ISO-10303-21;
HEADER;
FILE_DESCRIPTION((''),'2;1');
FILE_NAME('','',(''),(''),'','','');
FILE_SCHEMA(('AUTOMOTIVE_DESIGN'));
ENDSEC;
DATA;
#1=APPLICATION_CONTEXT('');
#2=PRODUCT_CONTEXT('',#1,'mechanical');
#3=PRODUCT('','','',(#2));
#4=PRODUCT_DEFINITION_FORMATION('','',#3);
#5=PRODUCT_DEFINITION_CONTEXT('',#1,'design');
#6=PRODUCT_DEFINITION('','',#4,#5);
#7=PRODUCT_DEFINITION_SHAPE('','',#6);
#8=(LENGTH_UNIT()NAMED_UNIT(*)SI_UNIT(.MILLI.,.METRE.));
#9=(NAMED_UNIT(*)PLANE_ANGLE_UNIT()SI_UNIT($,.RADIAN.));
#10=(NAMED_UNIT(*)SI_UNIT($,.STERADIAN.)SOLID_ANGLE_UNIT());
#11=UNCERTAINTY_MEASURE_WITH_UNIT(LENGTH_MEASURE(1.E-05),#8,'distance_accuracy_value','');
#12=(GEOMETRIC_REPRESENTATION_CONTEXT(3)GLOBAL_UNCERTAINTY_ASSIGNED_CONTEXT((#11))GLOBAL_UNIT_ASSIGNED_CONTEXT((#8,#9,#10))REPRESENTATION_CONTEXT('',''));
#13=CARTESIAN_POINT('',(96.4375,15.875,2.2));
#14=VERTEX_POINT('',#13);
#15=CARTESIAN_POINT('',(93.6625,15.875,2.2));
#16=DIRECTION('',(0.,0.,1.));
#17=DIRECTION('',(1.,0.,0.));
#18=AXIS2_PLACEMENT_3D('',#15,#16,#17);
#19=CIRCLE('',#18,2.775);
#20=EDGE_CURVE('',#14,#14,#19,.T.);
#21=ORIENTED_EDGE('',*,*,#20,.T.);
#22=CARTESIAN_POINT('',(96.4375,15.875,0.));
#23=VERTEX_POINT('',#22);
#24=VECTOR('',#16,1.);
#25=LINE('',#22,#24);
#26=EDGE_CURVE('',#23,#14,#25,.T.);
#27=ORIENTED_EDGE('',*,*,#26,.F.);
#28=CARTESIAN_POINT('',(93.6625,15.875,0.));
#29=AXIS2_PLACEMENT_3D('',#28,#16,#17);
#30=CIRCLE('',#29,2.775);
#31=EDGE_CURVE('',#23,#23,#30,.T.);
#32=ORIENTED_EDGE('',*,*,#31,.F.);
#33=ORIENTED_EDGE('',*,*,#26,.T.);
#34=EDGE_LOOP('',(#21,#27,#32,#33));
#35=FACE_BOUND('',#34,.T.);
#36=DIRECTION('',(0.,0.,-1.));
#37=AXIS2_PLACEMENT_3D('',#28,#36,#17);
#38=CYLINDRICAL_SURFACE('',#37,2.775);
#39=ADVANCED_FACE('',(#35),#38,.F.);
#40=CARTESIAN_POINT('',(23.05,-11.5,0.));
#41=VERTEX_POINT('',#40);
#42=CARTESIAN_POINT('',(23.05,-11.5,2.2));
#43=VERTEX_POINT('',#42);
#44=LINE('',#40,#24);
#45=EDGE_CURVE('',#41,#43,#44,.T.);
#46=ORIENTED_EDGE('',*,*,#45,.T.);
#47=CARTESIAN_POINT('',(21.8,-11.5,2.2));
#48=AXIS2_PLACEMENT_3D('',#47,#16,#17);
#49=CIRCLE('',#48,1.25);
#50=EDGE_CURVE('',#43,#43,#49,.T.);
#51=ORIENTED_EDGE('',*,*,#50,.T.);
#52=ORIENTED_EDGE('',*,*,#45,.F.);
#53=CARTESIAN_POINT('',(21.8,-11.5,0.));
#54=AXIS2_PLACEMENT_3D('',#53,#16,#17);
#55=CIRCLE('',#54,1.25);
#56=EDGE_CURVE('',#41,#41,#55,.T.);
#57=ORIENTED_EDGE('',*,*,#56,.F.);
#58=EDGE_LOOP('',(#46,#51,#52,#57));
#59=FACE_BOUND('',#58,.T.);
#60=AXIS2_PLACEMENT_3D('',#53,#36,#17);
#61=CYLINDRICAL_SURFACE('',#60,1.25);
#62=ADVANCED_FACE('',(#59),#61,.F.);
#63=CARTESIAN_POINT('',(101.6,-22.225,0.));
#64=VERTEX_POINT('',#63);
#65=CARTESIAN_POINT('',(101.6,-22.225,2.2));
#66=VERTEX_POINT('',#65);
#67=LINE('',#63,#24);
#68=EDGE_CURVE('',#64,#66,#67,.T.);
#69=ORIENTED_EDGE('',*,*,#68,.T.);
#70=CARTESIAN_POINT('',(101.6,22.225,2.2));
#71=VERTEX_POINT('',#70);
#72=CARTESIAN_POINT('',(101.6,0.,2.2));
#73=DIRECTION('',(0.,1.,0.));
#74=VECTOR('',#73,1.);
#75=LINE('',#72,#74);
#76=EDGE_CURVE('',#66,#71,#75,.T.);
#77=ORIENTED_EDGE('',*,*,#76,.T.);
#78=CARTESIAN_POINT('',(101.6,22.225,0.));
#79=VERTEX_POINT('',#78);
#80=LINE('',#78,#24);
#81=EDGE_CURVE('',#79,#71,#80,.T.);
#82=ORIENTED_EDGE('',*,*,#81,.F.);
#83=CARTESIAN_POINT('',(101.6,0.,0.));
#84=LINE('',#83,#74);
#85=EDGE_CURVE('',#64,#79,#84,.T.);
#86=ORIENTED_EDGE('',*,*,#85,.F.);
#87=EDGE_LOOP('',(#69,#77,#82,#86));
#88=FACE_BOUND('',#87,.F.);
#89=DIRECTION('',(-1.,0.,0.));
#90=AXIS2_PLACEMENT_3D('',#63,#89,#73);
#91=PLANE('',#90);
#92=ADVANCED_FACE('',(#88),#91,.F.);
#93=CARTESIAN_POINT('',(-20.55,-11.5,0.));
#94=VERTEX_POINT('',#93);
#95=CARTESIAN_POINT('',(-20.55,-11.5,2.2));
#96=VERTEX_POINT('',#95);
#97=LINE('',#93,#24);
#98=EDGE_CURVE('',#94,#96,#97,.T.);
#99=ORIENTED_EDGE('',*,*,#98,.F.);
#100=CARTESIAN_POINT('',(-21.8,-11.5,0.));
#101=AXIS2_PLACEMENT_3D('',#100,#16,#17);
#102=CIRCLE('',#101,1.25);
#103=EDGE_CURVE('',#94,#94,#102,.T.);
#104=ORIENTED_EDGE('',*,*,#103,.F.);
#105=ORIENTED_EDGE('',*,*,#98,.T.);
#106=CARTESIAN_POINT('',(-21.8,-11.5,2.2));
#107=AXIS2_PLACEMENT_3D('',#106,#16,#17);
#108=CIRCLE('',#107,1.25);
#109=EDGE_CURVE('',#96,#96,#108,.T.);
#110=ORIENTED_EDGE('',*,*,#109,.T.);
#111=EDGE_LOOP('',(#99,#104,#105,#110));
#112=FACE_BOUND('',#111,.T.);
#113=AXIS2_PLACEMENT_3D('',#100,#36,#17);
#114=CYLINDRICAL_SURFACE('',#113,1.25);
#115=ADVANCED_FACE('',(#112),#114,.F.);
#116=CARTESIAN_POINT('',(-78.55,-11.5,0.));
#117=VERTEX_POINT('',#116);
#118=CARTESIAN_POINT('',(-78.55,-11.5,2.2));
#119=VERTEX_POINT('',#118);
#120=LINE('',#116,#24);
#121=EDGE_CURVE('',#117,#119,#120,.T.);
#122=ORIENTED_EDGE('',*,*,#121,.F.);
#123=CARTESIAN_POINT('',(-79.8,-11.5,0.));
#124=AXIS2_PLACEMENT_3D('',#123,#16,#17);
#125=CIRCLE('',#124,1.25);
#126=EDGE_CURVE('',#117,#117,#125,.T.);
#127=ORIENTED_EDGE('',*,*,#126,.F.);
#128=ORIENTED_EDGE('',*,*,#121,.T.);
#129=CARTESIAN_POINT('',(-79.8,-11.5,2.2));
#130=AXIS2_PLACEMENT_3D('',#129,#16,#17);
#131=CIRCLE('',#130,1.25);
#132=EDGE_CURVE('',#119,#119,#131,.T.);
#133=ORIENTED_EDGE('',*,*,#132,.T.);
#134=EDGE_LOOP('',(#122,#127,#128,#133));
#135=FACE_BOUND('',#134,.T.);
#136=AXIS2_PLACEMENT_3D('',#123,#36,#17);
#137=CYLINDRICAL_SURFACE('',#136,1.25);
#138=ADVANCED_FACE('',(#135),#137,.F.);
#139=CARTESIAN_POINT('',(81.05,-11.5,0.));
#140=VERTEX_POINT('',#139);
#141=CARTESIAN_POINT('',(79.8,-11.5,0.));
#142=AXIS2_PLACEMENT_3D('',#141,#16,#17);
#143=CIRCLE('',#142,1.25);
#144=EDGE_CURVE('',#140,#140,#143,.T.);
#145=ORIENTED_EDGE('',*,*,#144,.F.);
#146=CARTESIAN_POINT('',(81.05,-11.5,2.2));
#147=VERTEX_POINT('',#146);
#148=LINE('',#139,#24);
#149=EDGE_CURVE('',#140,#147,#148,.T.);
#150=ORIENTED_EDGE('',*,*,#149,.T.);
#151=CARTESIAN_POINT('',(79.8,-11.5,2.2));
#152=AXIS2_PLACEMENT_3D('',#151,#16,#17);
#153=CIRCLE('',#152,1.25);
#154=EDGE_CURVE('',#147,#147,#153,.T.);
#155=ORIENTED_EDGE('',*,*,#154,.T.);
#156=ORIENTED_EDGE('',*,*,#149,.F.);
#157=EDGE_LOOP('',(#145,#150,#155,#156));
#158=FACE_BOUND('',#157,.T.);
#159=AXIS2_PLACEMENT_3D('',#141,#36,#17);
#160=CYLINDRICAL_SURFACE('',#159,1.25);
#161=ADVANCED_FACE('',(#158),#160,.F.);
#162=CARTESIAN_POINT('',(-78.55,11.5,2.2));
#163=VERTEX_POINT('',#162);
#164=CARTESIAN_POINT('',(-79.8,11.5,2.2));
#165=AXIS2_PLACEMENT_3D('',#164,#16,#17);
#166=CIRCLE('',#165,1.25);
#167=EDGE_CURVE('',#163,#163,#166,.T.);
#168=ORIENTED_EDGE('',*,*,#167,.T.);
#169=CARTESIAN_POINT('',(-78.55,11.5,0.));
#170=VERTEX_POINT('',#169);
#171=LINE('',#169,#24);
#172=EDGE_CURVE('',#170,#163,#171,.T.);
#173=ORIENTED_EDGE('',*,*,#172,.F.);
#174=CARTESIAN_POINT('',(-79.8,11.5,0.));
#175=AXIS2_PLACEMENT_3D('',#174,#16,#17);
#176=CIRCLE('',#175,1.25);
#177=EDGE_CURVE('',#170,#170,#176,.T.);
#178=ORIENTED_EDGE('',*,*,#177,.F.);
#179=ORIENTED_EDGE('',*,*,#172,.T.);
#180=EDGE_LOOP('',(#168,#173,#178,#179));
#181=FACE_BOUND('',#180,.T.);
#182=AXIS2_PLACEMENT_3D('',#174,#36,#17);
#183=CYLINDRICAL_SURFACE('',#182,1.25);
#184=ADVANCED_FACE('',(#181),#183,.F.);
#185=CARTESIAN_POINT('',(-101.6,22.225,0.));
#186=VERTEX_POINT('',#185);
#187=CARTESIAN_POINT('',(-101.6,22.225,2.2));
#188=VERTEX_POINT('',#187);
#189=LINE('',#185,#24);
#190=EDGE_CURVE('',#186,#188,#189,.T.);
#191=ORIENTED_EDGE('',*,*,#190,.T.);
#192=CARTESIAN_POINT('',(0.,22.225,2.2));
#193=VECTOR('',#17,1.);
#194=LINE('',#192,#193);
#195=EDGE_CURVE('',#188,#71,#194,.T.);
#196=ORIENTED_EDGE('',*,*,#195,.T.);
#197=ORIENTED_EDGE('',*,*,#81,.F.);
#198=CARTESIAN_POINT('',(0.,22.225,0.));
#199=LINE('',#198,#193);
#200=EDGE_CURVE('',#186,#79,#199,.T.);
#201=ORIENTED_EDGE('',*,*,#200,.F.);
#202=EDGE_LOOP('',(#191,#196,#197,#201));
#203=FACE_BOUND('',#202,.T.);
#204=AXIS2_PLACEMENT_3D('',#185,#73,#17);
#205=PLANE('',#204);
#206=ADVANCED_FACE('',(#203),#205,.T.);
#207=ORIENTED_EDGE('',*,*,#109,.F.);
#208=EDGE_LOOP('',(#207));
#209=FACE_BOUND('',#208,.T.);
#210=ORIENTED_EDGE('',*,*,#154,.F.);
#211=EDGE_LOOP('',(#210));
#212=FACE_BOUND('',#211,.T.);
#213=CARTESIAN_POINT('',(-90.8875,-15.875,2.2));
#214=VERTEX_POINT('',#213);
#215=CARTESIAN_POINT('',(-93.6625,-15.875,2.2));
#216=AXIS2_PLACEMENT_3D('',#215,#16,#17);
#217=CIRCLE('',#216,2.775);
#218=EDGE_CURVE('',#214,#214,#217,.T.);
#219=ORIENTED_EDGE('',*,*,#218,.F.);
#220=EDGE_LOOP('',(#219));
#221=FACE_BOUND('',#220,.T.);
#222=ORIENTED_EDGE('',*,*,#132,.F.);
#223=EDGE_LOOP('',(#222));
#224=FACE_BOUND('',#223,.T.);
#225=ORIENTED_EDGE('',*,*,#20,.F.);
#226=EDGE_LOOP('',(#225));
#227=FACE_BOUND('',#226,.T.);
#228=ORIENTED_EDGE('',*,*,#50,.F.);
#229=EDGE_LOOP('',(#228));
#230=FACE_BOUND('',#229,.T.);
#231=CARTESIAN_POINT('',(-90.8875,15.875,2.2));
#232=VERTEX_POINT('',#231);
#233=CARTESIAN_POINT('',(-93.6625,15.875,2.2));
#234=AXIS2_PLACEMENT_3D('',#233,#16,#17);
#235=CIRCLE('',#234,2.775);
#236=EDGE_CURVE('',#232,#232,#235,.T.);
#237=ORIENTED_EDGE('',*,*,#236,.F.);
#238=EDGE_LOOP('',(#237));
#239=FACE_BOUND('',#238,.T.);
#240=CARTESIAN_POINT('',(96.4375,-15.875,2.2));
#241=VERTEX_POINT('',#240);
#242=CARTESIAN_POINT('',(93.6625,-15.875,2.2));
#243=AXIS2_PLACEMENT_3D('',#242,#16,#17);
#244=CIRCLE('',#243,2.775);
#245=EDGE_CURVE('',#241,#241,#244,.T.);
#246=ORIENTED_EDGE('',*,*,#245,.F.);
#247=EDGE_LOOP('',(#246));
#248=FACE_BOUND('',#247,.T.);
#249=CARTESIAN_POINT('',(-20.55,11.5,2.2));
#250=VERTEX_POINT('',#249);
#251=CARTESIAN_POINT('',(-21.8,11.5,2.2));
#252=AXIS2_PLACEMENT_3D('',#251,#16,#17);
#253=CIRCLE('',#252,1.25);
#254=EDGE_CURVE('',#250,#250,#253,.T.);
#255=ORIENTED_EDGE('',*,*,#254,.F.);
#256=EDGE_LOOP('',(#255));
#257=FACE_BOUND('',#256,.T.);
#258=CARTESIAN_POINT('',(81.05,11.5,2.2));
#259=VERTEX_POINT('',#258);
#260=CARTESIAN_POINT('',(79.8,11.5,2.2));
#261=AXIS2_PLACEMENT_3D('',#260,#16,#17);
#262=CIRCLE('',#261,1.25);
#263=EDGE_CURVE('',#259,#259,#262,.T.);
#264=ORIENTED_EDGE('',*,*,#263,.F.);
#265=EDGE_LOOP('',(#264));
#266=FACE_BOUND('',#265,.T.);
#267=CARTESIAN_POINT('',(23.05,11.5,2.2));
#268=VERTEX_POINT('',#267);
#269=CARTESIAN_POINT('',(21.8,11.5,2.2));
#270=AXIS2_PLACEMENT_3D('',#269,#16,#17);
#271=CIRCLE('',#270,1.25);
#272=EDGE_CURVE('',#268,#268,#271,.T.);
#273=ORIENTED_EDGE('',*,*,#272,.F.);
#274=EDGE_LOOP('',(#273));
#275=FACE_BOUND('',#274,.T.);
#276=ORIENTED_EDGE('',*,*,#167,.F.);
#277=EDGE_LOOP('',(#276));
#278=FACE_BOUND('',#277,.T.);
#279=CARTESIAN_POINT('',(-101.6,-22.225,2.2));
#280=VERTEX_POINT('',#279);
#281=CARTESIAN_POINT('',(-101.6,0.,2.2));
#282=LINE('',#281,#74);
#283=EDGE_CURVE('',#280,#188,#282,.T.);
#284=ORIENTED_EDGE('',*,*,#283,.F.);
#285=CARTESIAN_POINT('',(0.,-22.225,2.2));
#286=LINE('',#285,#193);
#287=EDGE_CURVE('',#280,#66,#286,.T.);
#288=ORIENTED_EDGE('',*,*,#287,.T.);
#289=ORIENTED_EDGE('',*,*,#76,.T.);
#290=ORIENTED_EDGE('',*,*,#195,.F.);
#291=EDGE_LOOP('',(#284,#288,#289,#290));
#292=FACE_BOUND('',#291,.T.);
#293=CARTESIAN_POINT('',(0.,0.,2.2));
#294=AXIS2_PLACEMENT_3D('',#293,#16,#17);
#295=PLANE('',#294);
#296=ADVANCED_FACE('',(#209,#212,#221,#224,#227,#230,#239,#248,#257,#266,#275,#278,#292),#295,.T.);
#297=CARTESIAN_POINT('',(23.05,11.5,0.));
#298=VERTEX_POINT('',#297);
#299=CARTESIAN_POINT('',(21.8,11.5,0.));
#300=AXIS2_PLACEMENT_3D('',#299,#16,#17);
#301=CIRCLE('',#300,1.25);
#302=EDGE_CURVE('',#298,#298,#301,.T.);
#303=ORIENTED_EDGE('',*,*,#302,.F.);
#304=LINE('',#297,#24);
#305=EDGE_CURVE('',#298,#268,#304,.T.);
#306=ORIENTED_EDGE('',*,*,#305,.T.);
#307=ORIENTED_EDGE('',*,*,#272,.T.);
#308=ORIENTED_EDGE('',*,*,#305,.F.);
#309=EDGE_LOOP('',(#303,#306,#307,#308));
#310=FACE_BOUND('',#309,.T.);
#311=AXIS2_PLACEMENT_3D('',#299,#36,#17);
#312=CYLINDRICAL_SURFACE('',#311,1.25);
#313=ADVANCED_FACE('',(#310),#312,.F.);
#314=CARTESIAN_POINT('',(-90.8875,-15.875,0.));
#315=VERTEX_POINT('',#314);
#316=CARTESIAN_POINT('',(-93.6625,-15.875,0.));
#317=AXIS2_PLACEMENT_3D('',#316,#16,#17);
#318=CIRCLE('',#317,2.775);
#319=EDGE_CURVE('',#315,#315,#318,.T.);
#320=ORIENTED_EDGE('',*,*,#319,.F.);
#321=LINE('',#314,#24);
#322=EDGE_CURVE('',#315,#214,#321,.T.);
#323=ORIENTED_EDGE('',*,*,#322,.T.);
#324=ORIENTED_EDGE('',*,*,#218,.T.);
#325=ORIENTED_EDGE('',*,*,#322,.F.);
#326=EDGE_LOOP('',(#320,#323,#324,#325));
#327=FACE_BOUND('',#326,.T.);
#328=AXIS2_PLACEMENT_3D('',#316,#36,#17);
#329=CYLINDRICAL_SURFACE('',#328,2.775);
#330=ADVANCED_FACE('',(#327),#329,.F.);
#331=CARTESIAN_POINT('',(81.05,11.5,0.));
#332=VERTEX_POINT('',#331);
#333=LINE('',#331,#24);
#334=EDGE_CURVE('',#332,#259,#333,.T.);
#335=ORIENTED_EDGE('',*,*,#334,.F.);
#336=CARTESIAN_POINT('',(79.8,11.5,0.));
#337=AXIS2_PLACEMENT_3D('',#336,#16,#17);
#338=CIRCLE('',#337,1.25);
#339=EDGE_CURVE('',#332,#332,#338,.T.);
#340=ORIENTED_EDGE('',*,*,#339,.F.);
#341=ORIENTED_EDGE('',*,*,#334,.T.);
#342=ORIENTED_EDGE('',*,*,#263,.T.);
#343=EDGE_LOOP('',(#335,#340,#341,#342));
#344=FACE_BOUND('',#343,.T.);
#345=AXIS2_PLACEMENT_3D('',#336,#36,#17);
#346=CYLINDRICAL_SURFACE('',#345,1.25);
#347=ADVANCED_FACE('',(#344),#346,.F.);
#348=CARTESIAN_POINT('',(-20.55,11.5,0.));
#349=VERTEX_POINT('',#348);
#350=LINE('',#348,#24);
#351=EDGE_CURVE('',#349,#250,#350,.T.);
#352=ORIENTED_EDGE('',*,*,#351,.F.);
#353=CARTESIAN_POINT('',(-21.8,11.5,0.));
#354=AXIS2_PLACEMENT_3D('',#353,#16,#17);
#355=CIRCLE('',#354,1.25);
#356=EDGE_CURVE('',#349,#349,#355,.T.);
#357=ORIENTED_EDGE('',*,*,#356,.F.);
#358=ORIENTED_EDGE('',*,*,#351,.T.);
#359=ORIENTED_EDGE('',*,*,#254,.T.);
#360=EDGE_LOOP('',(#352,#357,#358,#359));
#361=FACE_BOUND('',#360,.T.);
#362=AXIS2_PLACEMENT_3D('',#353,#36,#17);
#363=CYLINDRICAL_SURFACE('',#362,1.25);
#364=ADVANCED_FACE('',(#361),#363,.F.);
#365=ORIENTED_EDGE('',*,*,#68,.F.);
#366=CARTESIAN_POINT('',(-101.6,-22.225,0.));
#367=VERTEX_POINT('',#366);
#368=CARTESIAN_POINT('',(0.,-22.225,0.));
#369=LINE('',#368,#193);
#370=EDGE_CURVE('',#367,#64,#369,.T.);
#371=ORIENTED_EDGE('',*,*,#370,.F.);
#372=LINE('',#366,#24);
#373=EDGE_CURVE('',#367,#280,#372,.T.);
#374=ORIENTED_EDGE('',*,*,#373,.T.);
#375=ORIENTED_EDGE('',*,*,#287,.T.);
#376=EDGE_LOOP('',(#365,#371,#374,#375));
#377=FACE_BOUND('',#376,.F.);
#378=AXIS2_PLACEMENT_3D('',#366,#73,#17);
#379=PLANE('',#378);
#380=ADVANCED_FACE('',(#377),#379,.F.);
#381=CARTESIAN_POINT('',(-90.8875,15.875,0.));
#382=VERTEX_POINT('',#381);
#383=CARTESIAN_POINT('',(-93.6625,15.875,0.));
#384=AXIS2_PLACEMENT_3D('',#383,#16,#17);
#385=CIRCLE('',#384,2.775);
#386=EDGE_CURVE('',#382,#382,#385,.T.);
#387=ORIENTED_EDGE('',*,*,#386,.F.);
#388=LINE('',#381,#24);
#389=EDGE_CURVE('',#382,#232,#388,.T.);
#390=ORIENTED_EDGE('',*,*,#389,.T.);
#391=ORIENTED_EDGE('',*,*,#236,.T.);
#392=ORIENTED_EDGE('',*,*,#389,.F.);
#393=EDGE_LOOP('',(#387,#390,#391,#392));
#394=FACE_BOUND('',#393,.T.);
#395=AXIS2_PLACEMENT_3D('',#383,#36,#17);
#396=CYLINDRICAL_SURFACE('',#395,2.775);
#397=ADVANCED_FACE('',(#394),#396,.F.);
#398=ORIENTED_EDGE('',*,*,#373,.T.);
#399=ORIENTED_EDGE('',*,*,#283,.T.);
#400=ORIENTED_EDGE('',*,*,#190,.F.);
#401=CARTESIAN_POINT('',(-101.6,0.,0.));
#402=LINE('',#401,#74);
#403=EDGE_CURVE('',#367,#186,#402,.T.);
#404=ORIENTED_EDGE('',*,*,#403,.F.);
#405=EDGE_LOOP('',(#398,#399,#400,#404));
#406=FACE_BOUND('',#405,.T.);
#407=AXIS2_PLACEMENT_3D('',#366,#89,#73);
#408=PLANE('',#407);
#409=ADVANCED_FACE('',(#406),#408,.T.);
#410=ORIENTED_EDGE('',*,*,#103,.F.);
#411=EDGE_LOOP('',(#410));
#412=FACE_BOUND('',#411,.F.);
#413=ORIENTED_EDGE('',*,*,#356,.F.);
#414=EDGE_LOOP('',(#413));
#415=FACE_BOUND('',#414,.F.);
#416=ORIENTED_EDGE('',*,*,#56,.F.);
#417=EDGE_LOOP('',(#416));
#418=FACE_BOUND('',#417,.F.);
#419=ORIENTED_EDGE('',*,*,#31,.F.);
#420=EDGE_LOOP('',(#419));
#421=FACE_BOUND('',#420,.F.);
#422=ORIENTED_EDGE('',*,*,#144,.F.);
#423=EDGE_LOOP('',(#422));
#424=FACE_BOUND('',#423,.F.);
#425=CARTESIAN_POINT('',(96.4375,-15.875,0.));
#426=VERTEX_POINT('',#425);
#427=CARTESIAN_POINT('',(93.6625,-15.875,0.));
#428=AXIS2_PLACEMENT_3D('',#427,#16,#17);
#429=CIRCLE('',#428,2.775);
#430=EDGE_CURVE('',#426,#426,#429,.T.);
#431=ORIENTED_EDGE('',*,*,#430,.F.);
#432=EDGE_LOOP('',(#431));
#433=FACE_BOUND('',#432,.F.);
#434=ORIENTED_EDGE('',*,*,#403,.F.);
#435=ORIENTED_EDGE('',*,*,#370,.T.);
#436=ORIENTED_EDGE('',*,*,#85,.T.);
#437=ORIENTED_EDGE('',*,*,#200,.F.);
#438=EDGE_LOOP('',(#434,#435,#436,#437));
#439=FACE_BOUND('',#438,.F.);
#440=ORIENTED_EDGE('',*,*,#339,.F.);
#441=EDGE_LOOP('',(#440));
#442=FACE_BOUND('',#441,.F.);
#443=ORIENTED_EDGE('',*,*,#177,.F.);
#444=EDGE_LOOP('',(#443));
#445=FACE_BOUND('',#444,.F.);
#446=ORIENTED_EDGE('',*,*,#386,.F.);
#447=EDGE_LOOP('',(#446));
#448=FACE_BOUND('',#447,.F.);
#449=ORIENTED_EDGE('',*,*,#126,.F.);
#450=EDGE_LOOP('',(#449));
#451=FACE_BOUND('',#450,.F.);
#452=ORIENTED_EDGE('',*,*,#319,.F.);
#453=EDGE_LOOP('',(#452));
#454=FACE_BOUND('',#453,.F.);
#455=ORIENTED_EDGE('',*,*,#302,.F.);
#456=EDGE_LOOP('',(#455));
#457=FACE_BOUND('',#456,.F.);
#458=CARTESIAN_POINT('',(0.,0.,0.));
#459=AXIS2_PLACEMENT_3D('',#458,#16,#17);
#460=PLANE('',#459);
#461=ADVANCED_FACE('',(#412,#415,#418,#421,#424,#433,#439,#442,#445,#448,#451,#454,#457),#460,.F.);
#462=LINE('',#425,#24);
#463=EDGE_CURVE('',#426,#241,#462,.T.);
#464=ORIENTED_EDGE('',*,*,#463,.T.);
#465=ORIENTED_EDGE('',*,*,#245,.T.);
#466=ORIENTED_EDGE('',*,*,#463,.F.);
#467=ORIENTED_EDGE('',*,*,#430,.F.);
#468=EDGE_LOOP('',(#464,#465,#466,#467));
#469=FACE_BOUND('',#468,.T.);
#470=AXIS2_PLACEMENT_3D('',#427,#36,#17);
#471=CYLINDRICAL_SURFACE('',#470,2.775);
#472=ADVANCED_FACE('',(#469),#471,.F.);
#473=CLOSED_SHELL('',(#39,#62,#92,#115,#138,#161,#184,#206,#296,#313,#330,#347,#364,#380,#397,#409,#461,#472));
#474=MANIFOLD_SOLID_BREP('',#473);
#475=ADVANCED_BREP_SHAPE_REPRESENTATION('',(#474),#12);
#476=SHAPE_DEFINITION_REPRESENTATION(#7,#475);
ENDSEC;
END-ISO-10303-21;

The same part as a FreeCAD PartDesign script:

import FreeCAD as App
import Part
import Sketcher
from FreeCAD import Vector

doc = App.newDocument("Part")
params = doc.addObject("Spreadsheet::Sheet", "Params")
for row, (alias, value) in enumerate([
    ("sketch1_diameter", "2.5 mm"),
    ("sketch1_diameter2", "5.55 mm"),
    ("sketch1_width", "203.2 mm"),
    ("sketch1_height", "44.45 mm"),
    ("pad1_length", "2.2 mm"),
], start=1):
    params.set(f"A{row}", alias)
    params.set(f"B{row}", "=" + value)
    params.setAlias(f"B{row}", alias)

body = doc.addObject("PartDesign::Body", "Body")

# Sketch on XY plane
sketch1 = doc.addObject("Sketcher::SketchObject", "Sketch")
body.addObject(sketch1)
sketch1.AttachmentSupport = (doc.XY_Plane, [""])
sketch1.MapMode = "FlatFace"
sketch1.addGeometry([
    Part.LineSegment(Vector(-101.6, 22.225, 0), Vector(-101.6, -22.225, 0)),  # 0
    Part.LineSegment(Vector(-101.6, -22.225, 0), Vector(101.6, -22.225, 0)),  # 1
    Part.LineSegment(Vector(101.6, -22.225, 0), Vector(101.6, 22.225, 0)),  # 2
    Part.LineSegment(Vector(101.6, 22.225, 0), Vector(-101.6, 22.225, 0)),  # 3
    Part.Circle(Vector(-93.6625, -15.875, 0), Vector(0, 0, 1), 2.775),  # 4
    Part.Circle(Vector(-79.8, -11.5, 0), Vector(0, 0, 1), 1.25),  # 5
    Part.Circle(Vector(-21.8, -11.5, 0), Vector(0, 0, 1), 1.25),  # 6
    Part.Circle(Vector(21.8, -11.5, 0), Vector(0, 0, 1), 1.25),  # 7
    Part.Circle(Vector(93.6625, -15.875, 0), Vector(0, 0, 1), 2.775),  # 8
    Part.Circle(Vector(79.8, -11.5, 0), Vector(0, 0, 1), 1.25),  # 9
    Part.Circle(Vector(-79.8, 11.5, 0), Vector(0, 0, 1), 1.25),  # 10
    Part.Circle(Vector(-93.6625, 15.875, 0), Vector(0, 0, 1), 2.775),  # 11
    Part.Circle(Vector(-21.8, 11.5, 0), Vector(0, 0, 1), 1.25),  # 12
    Part.Circle(Vector(21.8, 11.5, 0), Vector(0, 0, 1), 1.25),  # 13
    Part.Circle(Vector(79.8, 11.5, 0), Vector(0, 0, 1), 1.25),  # 14
    Part.Circle(Vector(93.6625, 15.875, 0), Vector(0, 0, 1), 2.775),  # 15
], False)
sketch1.addConstraint([
    Sketcher.Constraint("Coincident", 0, 2, 1, 1),
    Sketcher.Constraint("Coincident", 1, 2, 2, 1),
    Sketcher.Constraint("Coincident", 2, 2, 3, 1),
    Sketcher.Constraint("Coincident", 3, 2, 0, 1),
    Sketcher.Constraint("Vertical", 0),
    Sketcher.Constraint("Horizontal", 1),
    Sketcher.Constraint("Vertical", 2),
    Sketcher.Constraint("Horizontal", 3),
    Sketcher.Constraint("Equal", 5, 6),
    Sketcher.Constraint("Equal", 6, 7),
    Sketcher.Constraint("Equal", 4, 8),
    Sketcher.Constraint("Equal", 7, 9),
    Sketcher.Constraint("Equal", 9, 10),
    Sketcher.Constraint("Equal", 8, 11),
    Sketcher.Constraint("Equal", 10, 12),
    Sketcher.Constraint("Equal", 12, 13),
    Sketcher.Constraint("Equal", 13, 14),
    Sketcher.Constraint("Equal", 11, 15),
    Sketcher.Constraint("Symmetric", 9, 3, 10, 3, -1, 1),
    Sketcher.Constraint("Symmetric", 8, 3, 11, 3, -1, 1),
    Sketcher.Constraint("Symmetric", 7, 3, 12, 3, -1, 1),
    Sketcher.Constraint("Symmetric", 6, 3, 13, 3, -1, 1),
    Sketcher.Constraint("Symmetric", 5, 3, 14, 3, -1, 1),
    Sketcher.Constraint("Symmetric", 4, 3, 15, 3, -1, 1),
    Sketcher.Constraint("Symmetric", 0, 2, 2, 2, -1, 1),
    Sketcher.Constraint("Symmetric", 6, 3, 7, 3, -2),
    Sketcher.Constraint("Symmetric", 4, 3, 8, 3, -2),
    Sketcher.Constraint("Symmetric", 5, 3, 9, 3, -2),
    Sketcher.Constraint("Horizontal", 5, 3, 6, 3),
    Sketcher.Constraint("Diameter", 5, 2.5),
    Sketcher.Constraint("Diameter", 4, 5.55),
    Sketcher.Constraint("DistanceX", 1, 1, 1, 2, 203.2),
    Sketcher.Constraint("DistanceX", 5, 3, 6, 3, 58.0),
    Sketcher.Constraint("DistanceY", 5, 3, 10, 3, 23.0),
    Sketcher.Constraint("DistanceY", 0, 2, 0, 1, 44.45),
    Sketcher.Constraint("DistanceX", 5, 3, -1, 1, 79.8),
    Sketcher.Constraint("DistanceY", 0, 2, 11, 3, 38.1),
    Sketcher.Constraint("DistanceX", 4, 3, 8, 3, 187.325),
])
sketch1.setExpression("Constraints[29]", "Params.sketch1_diameter")
sketch1.setExpression("Constraints[30]", "Params.sketch1_diameter2")
sketch1.setExpression("Constraints[31]", "Params.sketch1_width")
sketch1.setExpression("Constraints[34]", "Params.sketch1_height")
pad1 = doc.addObject("PartDesign::Pad", "Pad")
body.addObject(pad1)
pad1.Profile = sketch1
pad1.setExpression("Length", "Params.pad1_length")

doc.recompute()
